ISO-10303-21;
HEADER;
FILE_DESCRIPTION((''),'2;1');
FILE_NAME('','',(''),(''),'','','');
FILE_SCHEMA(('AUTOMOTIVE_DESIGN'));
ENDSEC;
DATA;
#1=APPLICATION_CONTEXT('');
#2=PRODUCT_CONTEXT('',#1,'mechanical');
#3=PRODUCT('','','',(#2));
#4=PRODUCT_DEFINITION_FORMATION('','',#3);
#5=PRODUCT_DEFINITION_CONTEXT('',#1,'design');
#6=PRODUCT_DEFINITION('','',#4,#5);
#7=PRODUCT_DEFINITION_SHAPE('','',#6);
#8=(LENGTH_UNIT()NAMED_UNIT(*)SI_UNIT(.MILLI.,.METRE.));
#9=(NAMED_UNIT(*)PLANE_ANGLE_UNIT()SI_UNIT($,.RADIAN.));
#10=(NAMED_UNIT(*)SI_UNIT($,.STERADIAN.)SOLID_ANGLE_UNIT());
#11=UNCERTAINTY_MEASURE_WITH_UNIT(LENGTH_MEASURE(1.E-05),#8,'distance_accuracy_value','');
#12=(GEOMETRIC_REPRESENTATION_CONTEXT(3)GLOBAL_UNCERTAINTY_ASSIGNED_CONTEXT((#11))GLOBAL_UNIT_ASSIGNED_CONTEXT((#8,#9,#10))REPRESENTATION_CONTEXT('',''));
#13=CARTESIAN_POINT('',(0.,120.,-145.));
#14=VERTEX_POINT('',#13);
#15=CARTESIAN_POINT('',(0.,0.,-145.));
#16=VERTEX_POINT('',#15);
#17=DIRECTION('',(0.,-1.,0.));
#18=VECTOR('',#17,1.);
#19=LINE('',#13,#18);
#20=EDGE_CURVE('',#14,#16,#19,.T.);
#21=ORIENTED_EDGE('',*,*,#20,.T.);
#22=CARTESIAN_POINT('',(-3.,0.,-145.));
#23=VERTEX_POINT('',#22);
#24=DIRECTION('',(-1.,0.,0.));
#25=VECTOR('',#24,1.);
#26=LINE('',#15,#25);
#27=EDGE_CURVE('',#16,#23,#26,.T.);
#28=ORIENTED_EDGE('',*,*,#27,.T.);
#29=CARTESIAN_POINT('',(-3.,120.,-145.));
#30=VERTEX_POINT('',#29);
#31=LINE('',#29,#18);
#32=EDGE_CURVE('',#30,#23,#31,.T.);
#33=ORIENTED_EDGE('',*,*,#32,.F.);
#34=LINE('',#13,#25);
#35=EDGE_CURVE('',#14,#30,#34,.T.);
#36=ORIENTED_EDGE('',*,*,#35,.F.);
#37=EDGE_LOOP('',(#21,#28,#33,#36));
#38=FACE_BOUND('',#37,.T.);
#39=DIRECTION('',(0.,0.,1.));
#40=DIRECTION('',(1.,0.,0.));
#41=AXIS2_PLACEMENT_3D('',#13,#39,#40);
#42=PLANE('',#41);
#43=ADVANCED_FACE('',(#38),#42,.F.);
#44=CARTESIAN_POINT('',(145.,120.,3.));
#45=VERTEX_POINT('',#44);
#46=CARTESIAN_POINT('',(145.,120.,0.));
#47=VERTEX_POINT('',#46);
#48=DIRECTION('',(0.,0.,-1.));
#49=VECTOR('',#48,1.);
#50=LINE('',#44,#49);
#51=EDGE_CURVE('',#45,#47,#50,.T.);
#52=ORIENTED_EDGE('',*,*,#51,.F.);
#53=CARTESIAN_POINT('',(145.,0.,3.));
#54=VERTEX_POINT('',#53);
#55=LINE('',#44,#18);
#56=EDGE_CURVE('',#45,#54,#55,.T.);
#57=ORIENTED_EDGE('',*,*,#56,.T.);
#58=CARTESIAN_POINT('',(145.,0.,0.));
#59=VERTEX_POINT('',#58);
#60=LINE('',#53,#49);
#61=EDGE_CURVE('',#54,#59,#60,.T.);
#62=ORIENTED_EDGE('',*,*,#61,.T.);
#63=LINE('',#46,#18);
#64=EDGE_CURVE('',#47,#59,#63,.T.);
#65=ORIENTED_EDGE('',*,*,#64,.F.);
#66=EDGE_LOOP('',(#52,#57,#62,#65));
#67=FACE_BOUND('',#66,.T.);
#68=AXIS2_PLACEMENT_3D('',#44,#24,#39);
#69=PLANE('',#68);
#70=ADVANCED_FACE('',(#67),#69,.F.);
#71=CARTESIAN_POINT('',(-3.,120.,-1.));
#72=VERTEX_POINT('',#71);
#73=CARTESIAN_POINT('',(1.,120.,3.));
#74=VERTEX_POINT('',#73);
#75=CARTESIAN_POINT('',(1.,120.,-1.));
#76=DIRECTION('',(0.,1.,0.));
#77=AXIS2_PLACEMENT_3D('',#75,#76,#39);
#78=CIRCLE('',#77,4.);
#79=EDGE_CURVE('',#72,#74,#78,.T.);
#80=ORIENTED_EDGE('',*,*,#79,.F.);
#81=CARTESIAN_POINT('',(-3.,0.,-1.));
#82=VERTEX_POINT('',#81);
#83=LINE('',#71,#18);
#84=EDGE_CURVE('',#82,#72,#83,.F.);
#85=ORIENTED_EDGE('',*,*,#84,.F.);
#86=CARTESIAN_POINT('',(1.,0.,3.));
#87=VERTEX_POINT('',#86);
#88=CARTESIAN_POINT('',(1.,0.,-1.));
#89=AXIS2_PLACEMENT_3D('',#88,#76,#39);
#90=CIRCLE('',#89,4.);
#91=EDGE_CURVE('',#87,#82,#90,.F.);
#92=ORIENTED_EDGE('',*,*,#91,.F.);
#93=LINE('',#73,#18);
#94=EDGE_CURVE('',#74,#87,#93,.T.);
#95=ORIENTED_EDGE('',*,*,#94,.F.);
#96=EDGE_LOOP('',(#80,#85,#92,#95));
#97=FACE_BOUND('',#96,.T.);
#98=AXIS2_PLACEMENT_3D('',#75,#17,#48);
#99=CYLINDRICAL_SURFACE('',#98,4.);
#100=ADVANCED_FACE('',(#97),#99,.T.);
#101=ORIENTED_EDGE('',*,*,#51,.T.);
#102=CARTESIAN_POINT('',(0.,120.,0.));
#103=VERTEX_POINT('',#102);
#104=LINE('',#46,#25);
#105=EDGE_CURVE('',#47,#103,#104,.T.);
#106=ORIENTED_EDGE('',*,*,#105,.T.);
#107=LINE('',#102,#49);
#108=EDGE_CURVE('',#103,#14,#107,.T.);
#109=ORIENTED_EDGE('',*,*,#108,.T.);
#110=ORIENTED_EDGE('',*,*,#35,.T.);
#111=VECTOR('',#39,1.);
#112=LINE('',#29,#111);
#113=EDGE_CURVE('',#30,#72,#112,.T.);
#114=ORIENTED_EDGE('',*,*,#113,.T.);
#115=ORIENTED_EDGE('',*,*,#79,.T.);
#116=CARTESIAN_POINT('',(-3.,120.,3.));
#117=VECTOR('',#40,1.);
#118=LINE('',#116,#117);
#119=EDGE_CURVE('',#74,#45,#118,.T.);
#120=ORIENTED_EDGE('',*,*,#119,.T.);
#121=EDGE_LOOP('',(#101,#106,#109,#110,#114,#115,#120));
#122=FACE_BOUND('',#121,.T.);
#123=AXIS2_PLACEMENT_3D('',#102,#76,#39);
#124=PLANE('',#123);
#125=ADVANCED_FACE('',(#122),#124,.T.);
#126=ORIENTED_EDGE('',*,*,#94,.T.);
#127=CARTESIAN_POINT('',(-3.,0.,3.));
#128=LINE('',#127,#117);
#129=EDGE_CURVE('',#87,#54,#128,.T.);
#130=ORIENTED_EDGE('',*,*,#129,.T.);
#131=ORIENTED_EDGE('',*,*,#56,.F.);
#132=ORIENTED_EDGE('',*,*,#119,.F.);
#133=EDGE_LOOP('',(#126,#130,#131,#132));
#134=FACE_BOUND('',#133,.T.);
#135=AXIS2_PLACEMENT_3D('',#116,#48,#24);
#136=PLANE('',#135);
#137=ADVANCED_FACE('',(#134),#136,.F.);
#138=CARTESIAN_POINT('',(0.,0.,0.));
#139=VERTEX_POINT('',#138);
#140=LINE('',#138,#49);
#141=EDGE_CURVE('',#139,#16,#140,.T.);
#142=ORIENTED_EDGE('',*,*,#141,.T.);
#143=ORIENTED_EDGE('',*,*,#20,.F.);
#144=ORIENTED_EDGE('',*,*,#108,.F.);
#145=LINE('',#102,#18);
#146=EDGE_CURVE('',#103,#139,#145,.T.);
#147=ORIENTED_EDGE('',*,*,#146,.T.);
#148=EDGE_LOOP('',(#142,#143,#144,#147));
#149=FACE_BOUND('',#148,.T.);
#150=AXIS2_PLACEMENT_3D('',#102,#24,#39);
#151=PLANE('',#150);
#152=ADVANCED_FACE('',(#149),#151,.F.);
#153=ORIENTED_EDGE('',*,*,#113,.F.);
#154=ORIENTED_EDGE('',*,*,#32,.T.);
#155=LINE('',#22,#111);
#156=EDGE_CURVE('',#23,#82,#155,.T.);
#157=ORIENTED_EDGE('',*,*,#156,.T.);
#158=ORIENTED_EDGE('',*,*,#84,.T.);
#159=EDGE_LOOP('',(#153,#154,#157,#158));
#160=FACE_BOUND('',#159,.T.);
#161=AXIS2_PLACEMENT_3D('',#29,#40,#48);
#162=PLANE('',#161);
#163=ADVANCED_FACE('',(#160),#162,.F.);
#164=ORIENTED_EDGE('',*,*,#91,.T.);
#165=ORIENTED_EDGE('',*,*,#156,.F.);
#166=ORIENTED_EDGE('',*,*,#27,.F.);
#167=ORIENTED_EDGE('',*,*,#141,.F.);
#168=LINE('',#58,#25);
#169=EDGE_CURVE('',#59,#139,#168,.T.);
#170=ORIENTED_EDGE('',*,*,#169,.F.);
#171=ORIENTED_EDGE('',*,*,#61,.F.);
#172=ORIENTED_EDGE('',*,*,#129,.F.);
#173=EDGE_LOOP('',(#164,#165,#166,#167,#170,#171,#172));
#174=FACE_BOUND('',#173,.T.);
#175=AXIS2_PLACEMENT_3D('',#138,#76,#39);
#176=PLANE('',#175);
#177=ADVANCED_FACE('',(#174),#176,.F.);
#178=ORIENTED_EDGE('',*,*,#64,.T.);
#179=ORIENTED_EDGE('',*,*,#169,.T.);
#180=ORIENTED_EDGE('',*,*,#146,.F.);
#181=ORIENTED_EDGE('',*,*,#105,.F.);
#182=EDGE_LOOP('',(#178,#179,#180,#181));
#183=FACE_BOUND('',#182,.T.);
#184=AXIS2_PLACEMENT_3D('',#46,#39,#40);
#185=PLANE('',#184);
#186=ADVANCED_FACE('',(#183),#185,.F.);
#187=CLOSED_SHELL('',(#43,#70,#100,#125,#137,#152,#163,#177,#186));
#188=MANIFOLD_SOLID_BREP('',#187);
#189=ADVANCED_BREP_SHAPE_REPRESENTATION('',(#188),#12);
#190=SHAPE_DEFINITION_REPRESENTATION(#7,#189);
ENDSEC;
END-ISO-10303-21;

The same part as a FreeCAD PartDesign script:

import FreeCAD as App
import Part
import Sketcher


def edges_at(feature, points):
    """Names of the edges that pass closest to the given points."""
    edges = feature.Shape.Edges
    near = lambda p: min(range(len(edges)), key=lambda i: edges[i].distToShape(Part.Vertex(*p))[0])
    return sorted({f"Edge{near(p) + 1}" for p in points})


def add_polygon(sketch, points):
    """Adds a closed chain of lines whose ends are joined by coincident constraints."""
    first, n = sketch.GeometryCount, len(points)
    for a, b in zip(points, points[1:] + points[:1]):
        sketch.addGeometry(Part.LineSegment(App.Vector(*a, 0), App.Vector(*b, 0)), False)
    for i in range(n):
        sketch.addConstraint(Sketcher.Constraint("Coincident", first + i, 2, first + (i + 1) % n, 1))

doc = App.newDocument("Part")
params = doc.addObject("Spreadsheet::Sheet", "Params")
for row, (alias, value) in enumerate([
    ("sketch1_width", "145 mm"),
    ("sketch1_width2", "3 mm"),
    ("pad1_length", "120 mm"),
    ("fillet_radius", "4 mm"),
], start=1):
    params.set(f"A{row}", alias)
    params.set(f"B{row}", "=" + value)
    params.setAlias(f"B{row}", alias)

body = doc.addObject("PartDesign::Body", "Body")

# Sketch on XZ plane
sketch1 = body.newObject("Sketcher::SketchObject", "Sketch")
sketch1.AttachmentSupport = (doc.getObject("XZ_Plane"), [""])
sketch1.MapMode = "FlatFace"
add_polygon(sketch1, [(145, 0), (0, 0), (0, -145), (-3, -145), (-3, 3), (145, 3)])  # lines 0-5
sketch1.addConstraint(Sketcher.Constraint("Horizontal", 0))
sketch1.addConstraint(Sketcher.Constraint("Vertical", 1))
sketch1.addConstraint(Sketcher.Constraint("Horizontal", 2))
sketch1.addConstraint(Sketcher.Constraint("Vertical", 3))
sketch1.addConstraint(Sketcher.Constraint("Horizontal", 4))
sketch1.addConstraint(Sketcher.Constraint("Vertical", 5))
sketch1.addConstraint(Sketcher.Constraint("Coincident", 0, 2, -1, 1))
sketch1.addConstraint(Sketcher.Constraint("Equal", 0, 1))
sketch1.addConstraint(Sketcher.Constraint("Equal", 4, 3))
sketch1.addConstraint(Sketcher.Constraint("DistanceX", 0, 2, 0, 1, 145.0))
sketch1.addConstraint(Sketcher.Constraint("DistanceX", 2, 2, 2, 1, 3.0))
sketch1.setExpression("Constraints[15]", "Params.sketch1_width")
sketch1.setExpression("Constraints[16]", "Params.sketch1_width2")
pad1 = body.newObject("PartDesign::Pad", "Pad")
pad1.Profile = sketch1
pad1.setExpression("Length", "Params.pad1_length")
pad1.Reversed = True
doc.recompute()

fillet = body.newObject("PartDesign::Fillet", "Fillet")
fillet.Base = (pad1, edges_at(pad1, [(-3, 60, 3)]))
fillet.setExpression("Radius", "Params.fillet_radius")

doc.recompute()
